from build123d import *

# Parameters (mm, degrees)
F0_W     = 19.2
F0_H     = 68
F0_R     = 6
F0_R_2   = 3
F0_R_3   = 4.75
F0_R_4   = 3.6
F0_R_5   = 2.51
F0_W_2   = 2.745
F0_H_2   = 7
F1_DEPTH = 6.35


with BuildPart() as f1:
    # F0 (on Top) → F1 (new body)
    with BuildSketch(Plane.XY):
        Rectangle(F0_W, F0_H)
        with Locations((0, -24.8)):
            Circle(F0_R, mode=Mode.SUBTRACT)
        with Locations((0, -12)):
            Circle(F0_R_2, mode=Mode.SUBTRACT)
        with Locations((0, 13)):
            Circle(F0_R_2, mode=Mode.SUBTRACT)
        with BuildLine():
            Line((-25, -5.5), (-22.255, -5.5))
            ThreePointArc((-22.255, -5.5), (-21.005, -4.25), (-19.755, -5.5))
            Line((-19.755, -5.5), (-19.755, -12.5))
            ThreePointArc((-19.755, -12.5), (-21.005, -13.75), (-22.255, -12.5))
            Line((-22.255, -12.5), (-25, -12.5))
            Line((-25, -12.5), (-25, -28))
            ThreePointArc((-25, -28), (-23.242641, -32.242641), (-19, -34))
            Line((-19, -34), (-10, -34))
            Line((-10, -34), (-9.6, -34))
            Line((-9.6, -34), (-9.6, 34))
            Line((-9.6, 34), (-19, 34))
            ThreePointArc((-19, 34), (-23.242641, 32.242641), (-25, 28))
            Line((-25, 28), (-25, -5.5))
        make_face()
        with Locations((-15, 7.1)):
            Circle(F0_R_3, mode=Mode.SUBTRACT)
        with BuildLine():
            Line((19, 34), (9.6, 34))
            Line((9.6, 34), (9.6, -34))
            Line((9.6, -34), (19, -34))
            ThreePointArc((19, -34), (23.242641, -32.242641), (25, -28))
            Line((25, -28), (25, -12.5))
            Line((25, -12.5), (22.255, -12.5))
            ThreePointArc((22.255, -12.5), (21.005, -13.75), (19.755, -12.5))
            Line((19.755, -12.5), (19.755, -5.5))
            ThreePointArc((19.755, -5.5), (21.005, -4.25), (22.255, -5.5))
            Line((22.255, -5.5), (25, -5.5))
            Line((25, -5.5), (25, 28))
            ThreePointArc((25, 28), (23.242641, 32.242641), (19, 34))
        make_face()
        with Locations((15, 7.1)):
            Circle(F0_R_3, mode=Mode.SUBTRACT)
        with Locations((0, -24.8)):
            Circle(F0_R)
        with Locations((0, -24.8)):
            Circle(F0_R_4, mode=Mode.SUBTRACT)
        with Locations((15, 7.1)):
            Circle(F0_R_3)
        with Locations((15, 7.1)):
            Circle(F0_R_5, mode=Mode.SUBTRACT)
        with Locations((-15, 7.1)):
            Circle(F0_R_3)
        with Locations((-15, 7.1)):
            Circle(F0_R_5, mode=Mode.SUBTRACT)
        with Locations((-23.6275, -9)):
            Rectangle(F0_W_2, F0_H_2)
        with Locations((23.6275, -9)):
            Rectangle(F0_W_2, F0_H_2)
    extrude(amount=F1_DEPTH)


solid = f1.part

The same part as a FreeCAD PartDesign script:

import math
import FreeCAD as App
import Part
import Sketcher

V = App.Vector
Q = App.Units.Quantity

doc = App.newDocument("Part")
body = doc.addObject("PartDesign::Body", "Body")

# Sketch on XY plane
sketch1 = body.newObject("Sketcher::SketchObject", "Sketch")
sketch1.AttachmentSupport = (doc.getObject("XY_Plane"), [""])
sketch1.MapMode = "FlatFace"
sketch1.addGeometry(Part.LineSegment(V(-19, -34, 0), V(19, -34, 0)), False)
sketch1.addGeometry(Part.ArcOfCircle(Part.Circle(V(19, -28, 0), V(0, 0, 1), 6), math.radians(-90), math.radians(0)), False)
sketch1.addGeometry(Part.LineSegment(V(25, -28, 0), V(25, 28, 0)), False)
sketch1.addGeometry(Part.ArcOfCircle(Part.Circle(V(19, 28, 0), V(0, 0, 1), 6), math.radians(0), math.radians(90)), False)
sketch1.addGeometry(Part.LineSegment(V(19, 34, 0), V(-19, 34, 0)), False)
sketch1.addGeometry(Part.ArcOfCircle(Part.Circle(V(-19, 28, 0), V(0, 0, 1), 6), math.radians(90), math.radians(180)), False)
sketch1.addGeometry(Part.LineSegment(V(-25, 28, 0), V(-25, -28, 0)), False)
sketch1.addGeometry(Part.ArcOfCircle(Part.Circle(V(-19, -28, 0), V(0, 0, 1), 6), math.radians(180), math.radians(270)), False)
sketch1.addGeometry(Part.ArcOfCircle(Part.Circle(V(21, -12.5, 0), V(0, 0, 1), 1.2), math.radians(180), math.radians(360)), False)
sketch1.addGeometry(Part.LineSegment(V(19.8, -12.5, 0), V(19.8, -5.5, 0)), False)
sketch1.addGeometry(Part.ArcOfCircle(Part.Circle(V(21, -5.5, 0), V(0, 0, 1), 1.2), math.radians(0), math.radians(180)), False)
sketch1.addGeometry(Part.LineSegment(V(22.3, -5.5, 0), V(22.3, -12.5, 0)), False)
sketch1.addGeometry(Part.ArcOfCircle(Part.Circle(V(-21, -12.5, 0), V(0, 0, 1), 1.2), math.radians(180), math.radians(360)), False)
sketch1.addGeometry(Part.LineSegment(V(-22.3, -12.5, 0), V(-22.3, -5.5, 0)), False)
sketch1.addGeometry(Part.ArcOfCircle(Part.Circle(V(-21, -5.5, 0), V(0, 0, 1), 1.2), math.radians(0), math.radians(180)), False)
sketch1.addGeometry(Part.LineSegment(V(-19.8, -5.5, 0), V(-19.8, -12.5, 0)), False)
sketch1.addGeometry(Part.Circle(V(0, -24.8, 0), V(0, 0, 1), 3.6), False)
sketch1.addGeometry(Part.Circle(V(0, -12, 0), V(0, 0, 1), 3), False)
sketch1.addGeometry(Part.Circle(V(-15, 7.1, 0), V(0, 0, 1), 2.5), False)
sketch1.addGeometry(Part.Circle(V(0, 13, 0), V(0, 0, 1), 3), False)
sketch1.addGeometry(Part.Circle(V(15, 7.1, 0), V(0, 0, 1), 2.5), False)
sketch1.addConstraint(Sketcher.Constraint("Tangent", 0, 2, 1, 1))
sketch1.addConstraint(Sketcher.Constraint("Tangent", 1, 2, 2, 1))
sketch1.addConstraint(Sketcher.Constraint("Tangent", 2, 2, 3, 1))
sketch1.addConstraint(Sketcher.Constraint("Tangent", 3, 2, 4, 1))
sketch1.addConstraint(Sketcher.Constraint("Tangent", 4, 2, 5, 1))
sketch1.addConstraint(Sketcher.Constraint("Tangent", 5, 2, 6, 1))
sketch1.addConstraint(Sketcher.Constraint("Tangent", 6, 2, 7, 1))
sketch1.addConstraint(Sketcher.Constraint("Tangent", 7, 2, 0, 1))
sketch1.addConstraint(Sketcher.Constraint("Tangent", 8, 1, 9, 1))
sketch1.addConstraint(Sketcher.Constraint("Tangent", 9, 2, 10, 2))
sketch1.addConstraint(Sketcher.Constraint("Tangent", 10, 1, 11, 1))
sketch1.addConstraint(Sketcher.Constraint("Tangent", 11, 2, 8, 2))
sketch1.addConstraint(Sketcher.Constraint("Tangent", 12, 1, 13, 1))
sketch1.addConstraint(Sketcher.Constraint("Tangent", 13, 2, 14, 2))
sketch1.addConstraint(Sketcher.Constraint("Tangent", 14, 1, 15, 1))
sketch1.addConstraint(Sketcher.Constraint("Tangent", 15, 2, 12, 2))
sketch1.addConstraint(Sketcher.Constraint("Horizontal", 0))
sketch1.addConstraint(Sketcher.Constraint("Vertical", 2))
sketch1.addConstraint(Sketcher.Constraint("Horizontal", 4))
sketch1.addConstraint(Sketcher.Constraint("Vertical", 6))
sketch1.addConstraint(Sketcher.Constraint("Vertical", 9))
sketch1.addConstraint(Sketcher.Constraint("Vertical", 11))
sketch1.addConstraint(Sketcher.Constraint("Vertical", 13))
sketch1.addConstraint(Sketcher.Constraint("Vertical", 15))
sketch1.addConstraint(Sketcher.Constraint("Equal", 1, 3))
sketch1.addConstraint(Sketcher.Constraint("Equal", 3, 5))
sketch1.addConstraint(Sketcher.Constraint("Equal", 5, 7))
sketch1.addConstraint(Sketcher.Constraint("Equal", 10, 12))
sketch1.addConstraint(Sketcher.Constraint("Equal", 17, 19))
sketch1.addConstraint(Sketcher.Constraint("Equal", 18, 20))
sketch1.addConstraint(Sketcher.Constraint("Symmetric", 1, 3, 5, 3, -1, 1))
sketch1.addConstraint(Sketcher.Constraint("Symmetric", 8, 3, 12, 3, -2))
sketch1.addConstraint(Sketcher.Constraint("Symmetric", 18, 3, 20, 3, -2))
sketch1.addConstraint(Sketcher.Constraint("PointOnObject", 16, 3, -2))
sketch1.addConstraint(Sketcher.Constraint("PointOnObject", 17, 3, -2))
sketch1.addConstraint(Sketcher.Constraint("PointOnObject", 19, 3, -2))
sketch1.addConstraint(Sketcher.Constraint("Horizontal", 10, 3, 14, 3))
sketch1.addConstraint(Sketcher.Constraint("Diameter", 17, Q("6 mm")))
sketch1.addConstraint(Sketcher.Constraint("Radius", 1, Q("5.999999 mm")))
sketch1.addConstraint(Sketcher.Constraint("Diameter", 16, Q("7.2 mm")))
sketch1.addConstraint(Sketcher.Constraint("Diameter", 18, Q("5.02 mm")))
sketch1.addConstraint(Sketcher.Constraint("DistanceX", 0, 1, 0, 2, Q("38 mm")))
sketch1.addConstraint(Sketcher.Constraint("DistanceY", 2, 1, 2, 2, Q("56 mm")))
sketch1.addConstraint(Sketcher.Constraint("DistanceY", 9, 1, 9, 2, Q("7 mm")))
sketch1.addConstraint(Sketcher.Constraint("Radius", 8, Q("1.25 mm")))
sketch1.addConstraint(Sketcher.Constraint("DistanceY", 17, 3, -1, 1, Q("12 mm")))
sketch1.addConstraint(Sketcher.Constraint("DistanceX", 18, 3, -1, 1, Q("15 mm")))
sketch1.addConstraint(Sketcher.Constraint("DistanceY", -1, 1, 19, 3, Q("13 mm")))
sketch1.addConstraint(Sketcher.Constraint("DistanceY", 8, 3, -1, 1, Q("12.5 mm")))
sketch1.addConstraint(Sketcher.Constraint("DistanceY", 16, 3, -1, 1, Q("24.8 mm")))
sketch1.addConstraint(Sketcher.Constraint("DistanceY", -1, 1, 18, 3, Q("7.1 mm")))
sketch1.addConstraint(Sketcher.Constraint("DistanceX", 12, 3, 8, 3, Q("42.01 mm")))
pad1 = body.newObject("PartDesign::Pad", "Pad")
pad1.Profile = sketch1
pad1.Length = 6.35

doc.recompute()
